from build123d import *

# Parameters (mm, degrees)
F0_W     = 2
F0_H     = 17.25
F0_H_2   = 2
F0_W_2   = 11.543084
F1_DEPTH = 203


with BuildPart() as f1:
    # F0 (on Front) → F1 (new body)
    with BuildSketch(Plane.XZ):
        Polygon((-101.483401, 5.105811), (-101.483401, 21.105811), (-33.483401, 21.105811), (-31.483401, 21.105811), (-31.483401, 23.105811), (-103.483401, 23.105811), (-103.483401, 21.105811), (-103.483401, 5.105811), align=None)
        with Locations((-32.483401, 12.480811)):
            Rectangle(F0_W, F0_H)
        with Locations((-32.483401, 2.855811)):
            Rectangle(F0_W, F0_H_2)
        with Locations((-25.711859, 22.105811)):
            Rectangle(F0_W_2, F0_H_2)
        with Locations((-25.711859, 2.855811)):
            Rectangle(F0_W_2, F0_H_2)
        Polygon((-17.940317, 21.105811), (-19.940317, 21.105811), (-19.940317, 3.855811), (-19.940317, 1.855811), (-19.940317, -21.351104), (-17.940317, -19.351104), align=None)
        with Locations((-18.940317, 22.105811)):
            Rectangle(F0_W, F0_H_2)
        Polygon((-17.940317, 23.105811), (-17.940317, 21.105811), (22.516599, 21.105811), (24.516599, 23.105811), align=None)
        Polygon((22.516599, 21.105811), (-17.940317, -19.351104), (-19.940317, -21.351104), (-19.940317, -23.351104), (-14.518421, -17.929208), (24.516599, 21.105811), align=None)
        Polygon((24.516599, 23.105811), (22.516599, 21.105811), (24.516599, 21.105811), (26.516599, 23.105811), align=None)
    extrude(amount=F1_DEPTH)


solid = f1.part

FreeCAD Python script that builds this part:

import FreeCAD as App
import Part
import Sketcher
Q = App.Units.Quantity

doc = App.newDocument("Part")
body = doc.addObject("PartDesign::Body", "Body")

sketch1 = doc.addObject("Sketcher::SketchObject", "Sketch")
body.addObject(sketch1)
sketch1.AttachmentSupport = (doc.XZ_Plane, [""])
sketch1.MapMode = "FlatFace"
sketch1.addGeometry(Part.LineSegment(App.Vector(-14.5, -17.9, 0), App.Vector(24.5, 21.1, 0)), False)
sketch1.addGeometry(Part.LineSegment(App.Vector(24.5, 21.1, 0), App.Vector(26.5, 23.1, 0)), False)
sketch1.addGeometry(Part.LineSegment(App.Vector(26.5, 23.1, 0), App.Vector(-103.5, 23.1, 0)), False)
sketch1.addGeometry(Part.LineSegment(App.Vector(-103.5, 23.1, 0), App.Vector(-103.5, 5.1, 0)), False)
sketch1.addGeometry(Part.LineSegment(App.Vector(-103.5, 5.1, 0), App.Vector(-101.5, 5.1, 0)), False)
sketch1.addGeometry(Part.LineSegment(App.Vector(-101.5, 5.1, 0), App.Vector(-101.5, 21.1, 0)), False)
sketch1.addGeometry(Part.LineSegment(App.Vector(-101.5, 21.1, 0), App.Vector(-33.5, 21.1, 0)), False)
sketch1.addGeometry(Part.LineSegment(App.Vector(-33.5, 21.1, 0), App.Vector(-33.5, 1.9, 0)), False)
sketch1.addGeometry(Part.LineSegment(App.Vector(-33.5, 1.9, 0), App.Vector(-19.9, 1.9, 0)), False)
sketch1.addGeometry(Part.LineSegment(App.Vector(-19.9, 1.9, 0), App.Vector(-19.9, -23.4, 0)), False)
sketch1.addGeometry(Part.LineSegment(App.Vector(-19.9, -23.4, 0), App.Vector(-14.5, -17.9, 0)), False)
sketch1.addGeometry(Part.LineSegment(App.Vector(-31.5, 21.1, 0), App.Vector(-19.9, 21.1, 0)), False)
sketch1.addGeometry(Part.LineSegment(App.Vector(-19.9, 21.1, 0), App.Vector(-19.9, 3.9, 0)), False)
sketch1.addGeometry(Part.LineSegment(App.Vector(-19.9, 3.9, 0), App.Vector(-31.5, 3.9, 0)), False)
sketch1.addGeometry(Part.LineSegment(App.Vector(-31.5, 3.9, 0), App.Vector(-31.5, 21.1, 0)), False)
sketch1.addGeometry(Part.LineSegment(App.Vector(-17.9, 21.1, 0), App.Vector(22.5, 21.1, 0)), False)
sketch1.addGeometry(Part.LineSegment(App.Vector(22.5, 21.1, 0), App.Vector(-17.9, -19.4, 0)), False)
sketch1.addGeometry(Part.LineSegment(App.Vector(-17.9, -19.4, 0), App.Vector(-17.9, 21.1, 0)), False)
sketch1.addConstraint(Sketcher.Constraint("Coincident", 0, 2, 1, 1))
sketch1.addConstraint(Sketcher.Constraint("Coincident", 1, 2, 2, 1))
sketch1.addConstraint(Sketcher.Constraint("Coincident", 2, 2, 3, 1))
sketch1.addConstraint(Sketcher.Constraint("Coincident", 3, 2, 4, 1))
sketch1.addConstraint(Sketcher.Constraint("Coincident", 4, 2, 5, 1))
sketch1.addConstraint(Sketcher.Constraint("Coincident", 5, 2, 6, 1))
sketch1.addConstraint(Sketcher.Constraint("Coincident", 6, 2, 7, 1))
sketch1.addConstraint(Sketcher.Constraint("Coincident", 7, 2, 8, 1))
sketch1.addConstraint(Sketcher.Constraint("Coincident", 8, 2, 9, 1))
sketch1.addConstraint(Sketcher.Constraint("Coincident", 9, 2, 10, 1))
sketch1.addConstraint(Sketcher.Constraint("Coincident", 10, 2, 0, 1))
sketch1.addConstraint(Sketcher.Constraint("Coincident", 11, 2, 12, 1))
sketch1.addConstraint(Sketcher.Constraint("Coincident", 12, 2, 13, 1))
sketch1.addConstraint(Sketcher.Constraint("Coincident", 13, 2, 14, 1))
sketch1.addConstraint(Sketcher.Constraint("Coincident", 14, 2, 11, 1))
sketch1.addConstraint(Sketcher.Constraint("Coincident", 15, 2, 16, 1))
sketch1.addConstraint(Sketcher.Constraint("Coincident", 16, 2, 17, 1))
sketch1.addConstraint(Sketcher.Constraint("Coincident", 17, 2, 15, 1))
sketch1.addConstraint(Sketcher.Constraint("Horizontal", 2))
sketch1.addConstraint(Sketcher.Constraint("Vertical", 3))
sketch1.addConstraint(Sketcher.Constraint("Horizontal", 4))
sketch1.addConstraint(Sketcher.Constraint("Vertical", 5))
sketch1.addConstraint(Sketcher.Constraint("Horizontal", 6))
sketch1.addConstraint(Sketcher.Constraint("Vertical", 7))
sketch1.addConstraint(Sketcher.Constraint("Horizontal", 8))
sketch1.addConstraint(Sketcher.Constraint("Vertical", 9))
sketch1.addConstraint(Sketcher.Constraint("Horizontal", 11))
sketch1.addConstraint(Sketcher.Constraint("Vertical", 12))
sketch1.addConstraint(Sketcher.Constraint("Horizontal", 13))
sketch1.addConstraint(Sketcher.Constraint("Vertical", 14))
sketch1.addConstraint(Sketcher.Constraint("Horizontal", 15))
sketch1.addConstraint(Sketcher.Constraint("Vertical", 17))
sketch1.addConstraint(Sketcher.Constraint("Parallel", 0, 1))
sketch1.addConstraint(Sketcher.Constraint("Parallel", 1, 10))
sketch1.addConstraint(Sketcher.Constraint("Parallel", 10, 16))
sketch1.addConstraint(Sketcher.Constraint("Horizontal", 0, 2, 5, 2))
sketch1.addConstraint(Sketcher.Constraint("Horizontal", 6, 2, 11, 2))
sketch1.addConstraint(Sketcher.Constraint("Horizontal", 14, 2, 15, 2))
sketch1.addConstraint(Sketcher.Constraint("Vertical", 9, 2, 11, 2))
sketch1.addConstraint(Sketcher.Constraint("Equal", 15, 17))
sketch1.addConstraint(Sketcher.Constraint("DistanceX", 2, 2, 2, 1, Q("130 mm")))
sketch1.addConstraint(Sketcher.Constraint("DistanceX", 4, 1, 4, 2, Q("2 mm")))
sketch1.addConstraint(Sketcher.Constraint("DistanceX", 6, 1, 6, 2, Q("68 mm")))
sketch1.addConstraint(Sketcher.Constraint("DistanceY", 3, 2, 3, 1, Q("18 mm")))
sketch1.addConstraint(Sketcher.Constraint("DistanceY", 5, 1, 5, 2, Q("16 mm")))
sketch1.addConstraint(Sketcher.Constraint("DistanceY", 8, 2, 12, 2, Q("2 mm")))
sketch1.addConstraint(Sketcher.Constraint("DistanceX", 7, 2, 13, 2, Q("2 mm")))
sketch1.addConstraint(Sketcher.Constraint("DistanceX", 15, 2, 0, 2, Q("2 mm")))
sketch1.addConstraint(Sketcher.Constraint("DistanceX", 9, 2, 16, 2, Q("2 mm")))
sketch1.addConstraint(Sketcher.Constraint("DistanceY", 7, 2, 7, 1, Q("19.25 mm")))
sketch1.addConstraint(Sketcher.Constraint("DistanceX", -1, 1, 0, 2, Q("24.516599 mm")))
sketch1.addConstraint(Sketcher.Constraint("Distance", 10, Q("7.667719 mm")))
sketch1.addConstraint(Sketcher.Constraint("Distance", 16, Q("57.214719 mm")))
sketch1.addConstraint(Sketcher.Constraint("DistanceY", -1, 1, 0, 2, Q("21.105811 mm")))
pad1 = doc.addObject("PartDesign::Pad", "Pad")
body.addObject(pad1)
pad1.Profile = sketch1
pad1.Length = 203

doc.recompute()
